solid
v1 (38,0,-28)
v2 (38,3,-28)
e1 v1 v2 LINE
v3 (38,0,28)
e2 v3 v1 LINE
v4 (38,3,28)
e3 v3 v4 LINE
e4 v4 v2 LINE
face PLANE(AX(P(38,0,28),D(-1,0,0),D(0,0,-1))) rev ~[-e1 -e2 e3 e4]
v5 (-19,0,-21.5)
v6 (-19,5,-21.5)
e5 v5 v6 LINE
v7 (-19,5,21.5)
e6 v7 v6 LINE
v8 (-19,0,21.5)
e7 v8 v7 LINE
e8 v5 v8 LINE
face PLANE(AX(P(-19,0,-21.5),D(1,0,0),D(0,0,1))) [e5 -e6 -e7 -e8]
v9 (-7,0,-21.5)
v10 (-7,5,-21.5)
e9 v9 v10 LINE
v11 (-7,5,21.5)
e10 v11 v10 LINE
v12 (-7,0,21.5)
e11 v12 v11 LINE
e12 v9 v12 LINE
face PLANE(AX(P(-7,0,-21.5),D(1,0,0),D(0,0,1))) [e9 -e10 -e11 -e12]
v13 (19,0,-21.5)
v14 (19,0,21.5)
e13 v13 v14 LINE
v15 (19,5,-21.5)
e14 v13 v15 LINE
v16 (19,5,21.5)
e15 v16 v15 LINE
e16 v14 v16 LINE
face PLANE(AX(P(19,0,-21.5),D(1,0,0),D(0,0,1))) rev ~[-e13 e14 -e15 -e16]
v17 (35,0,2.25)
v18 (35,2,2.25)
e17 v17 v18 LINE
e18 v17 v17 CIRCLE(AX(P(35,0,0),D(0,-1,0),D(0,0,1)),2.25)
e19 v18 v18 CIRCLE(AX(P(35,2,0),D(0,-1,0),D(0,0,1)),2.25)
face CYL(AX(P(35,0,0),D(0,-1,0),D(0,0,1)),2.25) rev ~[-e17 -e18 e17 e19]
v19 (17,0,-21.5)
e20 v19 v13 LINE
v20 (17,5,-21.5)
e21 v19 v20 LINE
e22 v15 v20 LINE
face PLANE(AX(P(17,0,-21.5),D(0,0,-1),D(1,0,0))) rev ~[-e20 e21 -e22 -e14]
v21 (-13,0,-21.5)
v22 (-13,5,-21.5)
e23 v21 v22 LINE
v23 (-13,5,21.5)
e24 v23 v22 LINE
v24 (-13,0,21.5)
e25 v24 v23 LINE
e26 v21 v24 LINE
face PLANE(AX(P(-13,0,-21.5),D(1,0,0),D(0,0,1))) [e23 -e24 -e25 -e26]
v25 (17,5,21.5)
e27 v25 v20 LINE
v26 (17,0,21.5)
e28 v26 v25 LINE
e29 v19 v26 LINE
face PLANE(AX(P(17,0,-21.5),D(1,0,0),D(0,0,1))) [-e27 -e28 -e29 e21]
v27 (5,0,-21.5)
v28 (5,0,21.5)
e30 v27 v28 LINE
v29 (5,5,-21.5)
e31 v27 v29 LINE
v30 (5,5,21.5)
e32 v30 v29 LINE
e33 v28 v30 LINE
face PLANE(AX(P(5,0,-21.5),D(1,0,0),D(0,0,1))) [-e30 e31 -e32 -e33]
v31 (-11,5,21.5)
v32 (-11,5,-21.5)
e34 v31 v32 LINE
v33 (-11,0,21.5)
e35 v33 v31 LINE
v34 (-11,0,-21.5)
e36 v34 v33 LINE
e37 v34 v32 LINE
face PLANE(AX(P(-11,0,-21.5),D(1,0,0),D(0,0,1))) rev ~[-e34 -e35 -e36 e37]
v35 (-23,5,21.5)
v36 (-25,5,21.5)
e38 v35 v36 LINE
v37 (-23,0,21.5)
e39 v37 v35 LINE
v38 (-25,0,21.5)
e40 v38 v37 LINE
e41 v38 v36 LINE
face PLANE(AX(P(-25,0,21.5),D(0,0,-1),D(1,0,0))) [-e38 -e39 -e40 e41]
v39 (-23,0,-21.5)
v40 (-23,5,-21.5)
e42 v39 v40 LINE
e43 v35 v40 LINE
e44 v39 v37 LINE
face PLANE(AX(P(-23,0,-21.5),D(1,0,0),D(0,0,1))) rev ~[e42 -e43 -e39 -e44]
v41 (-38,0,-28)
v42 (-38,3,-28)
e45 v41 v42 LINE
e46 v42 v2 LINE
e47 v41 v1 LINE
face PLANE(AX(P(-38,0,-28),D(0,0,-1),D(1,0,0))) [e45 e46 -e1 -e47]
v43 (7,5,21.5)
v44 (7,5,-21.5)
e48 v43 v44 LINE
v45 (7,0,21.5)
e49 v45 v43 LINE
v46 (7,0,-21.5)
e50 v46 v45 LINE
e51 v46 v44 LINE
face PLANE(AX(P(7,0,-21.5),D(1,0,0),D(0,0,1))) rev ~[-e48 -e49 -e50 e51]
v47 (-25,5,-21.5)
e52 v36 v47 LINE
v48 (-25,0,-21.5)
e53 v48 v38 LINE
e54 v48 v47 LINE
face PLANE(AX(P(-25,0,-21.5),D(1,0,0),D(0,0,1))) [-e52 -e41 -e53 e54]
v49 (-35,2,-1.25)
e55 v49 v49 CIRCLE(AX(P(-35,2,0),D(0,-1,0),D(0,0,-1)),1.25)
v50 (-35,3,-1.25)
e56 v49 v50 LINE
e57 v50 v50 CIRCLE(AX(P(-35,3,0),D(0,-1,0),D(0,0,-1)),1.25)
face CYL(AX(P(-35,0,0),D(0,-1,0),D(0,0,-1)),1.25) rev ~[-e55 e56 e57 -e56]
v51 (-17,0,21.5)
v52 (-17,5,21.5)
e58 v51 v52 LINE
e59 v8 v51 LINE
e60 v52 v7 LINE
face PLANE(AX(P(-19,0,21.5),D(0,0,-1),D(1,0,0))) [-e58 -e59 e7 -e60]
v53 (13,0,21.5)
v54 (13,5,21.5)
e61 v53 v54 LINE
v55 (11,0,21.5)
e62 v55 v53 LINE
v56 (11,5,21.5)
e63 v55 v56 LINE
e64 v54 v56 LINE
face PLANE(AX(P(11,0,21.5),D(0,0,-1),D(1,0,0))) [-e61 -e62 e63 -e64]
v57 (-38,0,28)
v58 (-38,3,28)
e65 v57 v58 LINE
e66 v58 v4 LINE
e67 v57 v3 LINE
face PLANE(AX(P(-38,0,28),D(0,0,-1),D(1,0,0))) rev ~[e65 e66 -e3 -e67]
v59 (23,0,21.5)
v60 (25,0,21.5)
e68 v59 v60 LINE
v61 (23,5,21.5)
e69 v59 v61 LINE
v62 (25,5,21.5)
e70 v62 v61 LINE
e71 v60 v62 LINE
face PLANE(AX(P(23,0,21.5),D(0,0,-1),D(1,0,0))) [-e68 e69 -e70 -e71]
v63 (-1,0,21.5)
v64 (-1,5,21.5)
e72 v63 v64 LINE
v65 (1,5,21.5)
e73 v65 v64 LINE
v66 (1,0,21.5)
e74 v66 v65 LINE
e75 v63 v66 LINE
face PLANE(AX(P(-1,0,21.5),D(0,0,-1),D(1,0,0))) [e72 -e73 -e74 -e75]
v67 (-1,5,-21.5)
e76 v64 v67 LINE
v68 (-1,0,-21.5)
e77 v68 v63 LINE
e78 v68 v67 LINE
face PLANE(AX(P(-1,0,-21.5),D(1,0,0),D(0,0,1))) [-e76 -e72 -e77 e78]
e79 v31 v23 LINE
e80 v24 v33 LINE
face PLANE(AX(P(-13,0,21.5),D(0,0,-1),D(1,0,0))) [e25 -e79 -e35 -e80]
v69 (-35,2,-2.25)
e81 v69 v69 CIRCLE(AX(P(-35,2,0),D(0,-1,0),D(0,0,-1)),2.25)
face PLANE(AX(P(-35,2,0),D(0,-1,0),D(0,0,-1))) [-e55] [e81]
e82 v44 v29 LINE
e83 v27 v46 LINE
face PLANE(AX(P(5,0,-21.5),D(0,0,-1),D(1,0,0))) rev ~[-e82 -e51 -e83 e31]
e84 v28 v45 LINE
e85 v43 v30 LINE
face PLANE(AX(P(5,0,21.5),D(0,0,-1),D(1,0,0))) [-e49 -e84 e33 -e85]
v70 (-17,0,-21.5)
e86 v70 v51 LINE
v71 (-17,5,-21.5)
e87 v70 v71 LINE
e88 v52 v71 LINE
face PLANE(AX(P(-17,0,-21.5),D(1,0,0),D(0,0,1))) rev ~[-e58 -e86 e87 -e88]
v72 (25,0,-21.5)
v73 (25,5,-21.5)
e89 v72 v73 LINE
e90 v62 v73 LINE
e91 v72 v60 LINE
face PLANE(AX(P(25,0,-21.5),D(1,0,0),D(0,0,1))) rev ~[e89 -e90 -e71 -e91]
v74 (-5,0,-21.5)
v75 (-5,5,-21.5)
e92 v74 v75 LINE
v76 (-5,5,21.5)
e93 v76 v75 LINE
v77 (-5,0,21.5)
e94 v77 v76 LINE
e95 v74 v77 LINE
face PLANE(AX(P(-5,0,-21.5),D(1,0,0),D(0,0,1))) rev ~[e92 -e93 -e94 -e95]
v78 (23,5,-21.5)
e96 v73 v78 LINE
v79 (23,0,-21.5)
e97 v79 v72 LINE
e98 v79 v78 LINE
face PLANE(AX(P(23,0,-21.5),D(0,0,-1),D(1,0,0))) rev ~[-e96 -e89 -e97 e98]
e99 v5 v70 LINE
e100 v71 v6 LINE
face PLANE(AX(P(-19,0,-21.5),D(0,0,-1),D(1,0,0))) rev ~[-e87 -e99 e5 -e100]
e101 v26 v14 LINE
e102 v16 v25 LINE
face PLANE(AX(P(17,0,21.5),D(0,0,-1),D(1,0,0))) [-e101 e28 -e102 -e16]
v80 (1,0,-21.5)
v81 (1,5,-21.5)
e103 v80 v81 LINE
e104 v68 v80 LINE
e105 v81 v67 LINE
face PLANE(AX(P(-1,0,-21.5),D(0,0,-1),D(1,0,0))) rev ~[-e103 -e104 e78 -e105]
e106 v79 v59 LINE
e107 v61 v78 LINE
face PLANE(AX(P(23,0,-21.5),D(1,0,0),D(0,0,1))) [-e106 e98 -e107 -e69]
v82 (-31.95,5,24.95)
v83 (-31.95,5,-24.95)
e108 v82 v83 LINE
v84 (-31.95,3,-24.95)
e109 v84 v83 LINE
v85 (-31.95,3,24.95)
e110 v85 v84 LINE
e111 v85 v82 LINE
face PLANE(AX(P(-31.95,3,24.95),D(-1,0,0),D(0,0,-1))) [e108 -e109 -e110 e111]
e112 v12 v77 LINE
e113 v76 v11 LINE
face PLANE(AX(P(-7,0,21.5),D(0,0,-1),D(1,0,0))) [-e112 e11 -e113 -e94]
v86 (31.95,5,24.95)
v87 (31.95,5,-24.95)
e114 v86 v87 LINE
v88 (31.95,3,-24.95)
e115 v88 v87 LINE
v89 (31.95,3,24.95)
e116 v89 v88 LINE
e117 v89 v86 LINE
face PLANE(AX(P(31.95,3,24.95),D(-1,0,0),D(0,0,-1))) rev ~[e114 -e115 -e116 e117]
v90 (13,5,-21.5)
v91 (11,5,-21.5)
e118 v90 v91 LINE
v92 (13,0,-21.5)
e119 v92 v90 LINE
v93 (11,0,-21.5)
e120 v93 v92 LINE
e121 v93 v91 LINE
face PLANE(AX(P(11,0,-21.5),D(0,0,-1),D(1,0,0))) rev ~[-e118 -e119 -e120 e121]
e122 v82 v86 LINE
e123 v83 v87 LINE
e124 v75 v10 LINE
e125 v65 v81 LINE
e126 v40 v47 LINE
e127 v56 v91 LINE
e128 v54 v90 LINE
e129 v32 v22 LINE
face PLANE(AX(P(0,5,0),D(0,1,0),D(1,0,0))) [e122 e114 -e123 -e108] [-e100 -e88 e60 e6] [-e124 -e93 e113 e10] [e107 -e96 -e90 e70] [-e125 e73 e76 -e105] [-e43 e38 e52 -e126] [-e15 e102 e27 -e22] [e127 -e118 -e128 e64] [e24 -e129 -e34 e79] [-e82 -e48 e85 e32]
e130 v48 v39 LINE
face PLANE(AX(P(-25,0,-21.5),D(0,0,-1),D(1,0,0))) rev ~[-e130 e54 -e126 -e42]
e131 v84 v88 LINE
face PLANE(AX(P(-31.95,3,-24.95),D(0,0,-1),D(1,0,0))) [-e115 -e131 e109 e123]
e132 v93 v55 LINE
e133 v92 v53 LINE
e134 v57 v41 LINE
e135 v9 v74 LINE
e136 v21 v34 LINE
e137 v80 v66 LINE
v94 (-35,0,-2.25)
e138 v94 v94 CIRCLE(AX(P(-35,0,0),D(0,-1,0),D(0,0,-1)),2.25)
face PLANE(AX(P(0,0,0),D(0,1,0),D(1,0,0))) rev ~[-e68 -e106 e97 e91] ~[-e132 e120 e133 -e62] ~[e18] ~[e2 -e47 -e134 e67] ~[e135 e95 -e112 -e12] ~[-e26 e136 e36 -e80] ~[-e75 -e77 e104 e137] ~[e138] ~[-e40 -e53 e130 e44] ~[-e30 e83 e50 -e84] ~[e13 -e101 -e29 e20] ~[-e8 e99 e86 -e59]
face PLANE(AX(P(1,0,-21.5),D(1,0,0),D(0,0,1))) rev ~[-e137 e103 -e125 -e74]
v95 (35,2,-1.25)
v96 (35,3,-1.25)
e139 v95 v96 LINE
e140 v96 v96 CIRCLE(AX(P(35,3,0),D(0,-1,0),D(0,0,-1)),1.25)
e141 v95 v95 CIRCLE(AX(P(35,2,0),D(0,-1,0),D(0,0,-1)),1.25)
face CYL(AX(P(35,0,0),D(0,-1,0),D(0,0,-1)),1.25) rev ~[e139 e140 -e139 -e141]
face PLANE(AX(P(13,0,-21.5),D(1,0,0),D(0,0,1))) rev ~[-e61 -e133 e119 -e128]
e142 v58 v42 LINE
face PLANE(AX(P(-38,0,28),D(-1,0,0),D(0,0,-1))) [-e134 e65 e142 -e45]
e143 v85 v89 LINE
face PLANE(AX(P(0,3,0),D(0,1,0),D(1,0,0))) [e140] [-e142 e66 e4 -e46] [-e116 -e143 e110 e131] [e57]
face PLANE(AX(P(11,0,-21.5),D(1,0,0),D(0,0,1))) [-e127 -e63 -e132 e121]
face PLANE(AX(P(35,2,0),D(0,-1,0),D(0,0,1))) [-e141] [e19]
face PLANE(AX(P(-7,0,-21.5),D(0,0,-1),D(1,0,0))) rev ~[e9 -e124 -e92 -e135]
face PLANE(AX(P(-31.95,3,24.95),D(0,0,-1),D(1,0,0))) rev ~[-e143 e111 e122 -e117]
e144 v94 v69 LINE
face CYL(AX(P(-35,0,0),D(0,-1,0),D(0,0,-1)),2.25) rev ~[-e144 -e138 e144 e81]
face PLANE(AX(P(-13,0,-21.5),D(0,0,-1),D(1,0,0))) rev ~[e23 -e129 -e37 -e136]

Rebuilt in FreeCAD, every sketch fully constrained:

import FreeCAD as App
import Part
import Sketcher

V = App.Vector
Q = App.Units.Quantity


def add_polygon(sketch, points):
    """Adds a closed chain of lines whose ends are joined by coincident constraints."""
    first, n = sketch.GeometryCount, len(points)
    for a, b in zip(points, points[1:] + points[:1]):
        sketch.addGeometry(Part.LineSegment(App.Vector(*a, 0), App.Vector(*b, 0)), False)
    for i in range(n):
        sketch.addConstraint(Sketcher.Constraint("Coincident", first + i, 2, first + (i + 1) % n, 1))

doc = App.newDocument("Part")
params = doc.addObject("Spreadsheet::Sheet", "Params")
for row, (alias, value) in enumerate([
    ("sketch1_width", "76 mm"),
    ("sketch1_height", "56 mm"),
    ("pad1_length", "3 mm"),
    ("sketch2_width", "63.9 mm"),
    ("sketch2_height", "49.9 mm"),
    ("pad2_length", "2 mm"),
    ("sketch3_diameter", "4.5 mm"),
    ("pocket1_length", "2 mm"),
    ("sketch4_diameter", "2.5 mm"),
    ("pocket2_length", "3 mm"),
    ("sketch5_diameter", "2.5 mm"),
    ("pocket3_length", "3 mm"),
    ("sketch6_width", "2 mm"),
    ("sketch6_height", "43 mm"),
], start=1):
    params.set(f"A{row}", alias)
    params.set(f"B{row}", "=" + value)
    params.setAlias(f"B{row}", alias)

body = doc.addObject("PartDesign::Body", "Body")

# Sketch on XZ plane
sketch1 = body.newObject("Sketcher::SketchObject", "Sketch")
sketch1.AttachmentSupport = (doc.getObject("XZ_Plane"), [""])
sketch1.MapMode = "FlatFace"
add_polygon(sketch1, [(-38, -28), (-38, 28), (38, 28), (38, -28)])  # lines 0-3
sketch1.addConstraint(Sketcher.Constraint("Vertical", 0))
sketch1.addConstraint(Sketcher.Constraint("Horizontal", 1))
sketch1.addConstraint(Sketcher.Constraint("Vertical", 2))
sketch1.addConstraint(Sketcher.Constraint("Horizontal", 3))
sketch1.addConstraint(Sketcher.Constraint("Symmetric", 0, 2, 2, 2, -1, 1))
sketch1.addConstraint(Sketcher.Constraint("DistanceX", 1, 1, 1, 2, Q("76 mm")))
sketch1.addConstraint(Sketcher.Constraint("DistanceY", 0, 1, 0, 2, Q("56 mm")))
sketch1.setExpression("Constraints[9]", "Params.sketch1_width")
sketch1.setExpression("Constraints[10]", "Params.sketch1_height")
pad1 = body.newObject("PartDesign::Pad", "Pad")
pad1.Profile = sketch1
pad1.setExpression("Length", "Params.pad1_length")
pad1.Reversed = True

# Sketch on XZ plane
sketch2 = body.newObject("Sketcher::SketchObject", "Sketch001")
sketch2.AttachmentSupport = (doc.getObject("XZ_Plane"), [""])
sketch2.MapMode = "FlatFace"
sketch2.AttachmentOffset = App.Placement(V(0, 0, -3), App.Rotation())
add_polygon(sketch2, [(-32, -25), (-32, 25), (32, 25), (32, -25)])  # lines 0-3
sketch2.addConstraint(Sketcher.Constraint("Vertical", 0))
sketch2.addConstraint(Sketcher.Constraint("Horizontal", 1))
sketch2.addConstraint(Sketcher.Constraint("Vertical", 2))
sketch2.addConstraint(Sketcher.Constraint("Horizontal", 3))
sketch2.addConstraint(Sketcher.Constraint("Symmetric", 0, 2, 2, 2, -1, 1))
sketch2.addConstraint(Sketcher.Constraint("DistanceX", 1, 1, 1, 2, Q("63.9 mm")))
sketch2.addConstraint(Sketcher.Constraint("DistanceY", 0, 1, 0, 2, Q("49.9 mm")))
sketch2.setExpression("Constraints[9]", "Params.sketch2_width")
sketch2.setExpression("Constraints[10]", "Params.sketch2_height")
pad2 = body.newObject("PartDesign::Pad", "Pad001")
pad2.Profile = sketch2
pad2.setExpression("Length", "Params.pad2_length")
pad2.Reversed = True

# Sketch on XZ plane
sketch3 = body.newObject("Sketcher::SketchObject", "Sketch002")
sketch3.AttachmentSupport = (doc.getObject("XZ_Plane"), [""])
sketch3.MapMode = "FlatFace"
sketch3.addGeometry(Part.Circle(V(-35, 0, 0), V(0, 0, 1), 2.2), False)
sketch3.addGeometry(Part.Circle(V(35, 0, 0), V(0, 0, 1), 2.2), False)
sketch3.addConstraint(Sketcher.Constraint("Equal", 0, 1))
sketch3.addConstraint(Sketcher.Constraint("Symmetric", 0, 3, 1, 3, -1, 1))
sketch3.addConstraint(Sketcher.Constraint("PointOnObject", 0, 3, -1))
sketch3.addConstraint(Sketcher.Constraint("Diameter", 0, Q("4.5 mm")))
sketch3.addConstraint(Sketcher.Constraint("DistanceX", 0, 3, -1, 1, Q("35 mm")))
sketch3.setExpression("Constraints[3]", "Params.sketch3_diameter")
pocket1 = body.newObject("PartDesign::Pocket", "Pocket")
pocket1.Profile = sketch3
pocket1.setExpression("Length", "Params.pocket1_length")

# Sketch on XZ plane
sketch4 = body.newObject("Sketcher::SketchObject", "Sketch003")
sketch4.AttachmentSupport = (doc.getObject("XZ_Plane"), [""])
sketch4.MapMode = "FlatFace"
sketch4.addGeometry(Part.Circle(V(-35, 0, 0), V(0, 0, 1), 1.2), False)
sketch4.addConstraint(Sketcher.Constraint("PointOnObject", 0, 3, -1))
sketch4.addConstraint(Sketcher.Constraint("Diameter", 0, Q("2.5 mm")))
sketch4.addConstraint(Sketcher.Constraint("DistanceX", 0, 3, -1, 1, Q("35 mm")))
sketch4.setExpression("Constraints[1]", "Params.sketch4_diameter")
pocket2 = body.newObject("PartDesign::Pocket", "Pocket001")
pocket2.Profile = sketch4
pocket2.setExpression("Length", "Params.pocket2_length")

# Sketch on XZ plane
sketch5 = body.newObject("Sketcher::SketchObject", "Sketch004")
sketch5.AttachmentSupport = (doc.getObject("XZ_Plane"), [""])
sketch5.MapMode = "FlatFace"
sketch5.addGeometry(Part.Circle(V(35, 0, 0), V(0, 0, 1), 1.2), False)
sketch5.addConstraint(Sketcher.Constraint("PointOnObject", 0, 3, -1))
sketch5.addConstraint(Sketcher.Constraint("Diameter", 0, Q("2.5 mm")))
sketch5.addConstraint(Sketcher.Constraint("DistanceX", -1, 1, 0, 3, Q("35 mm")))
sketch5.setExpression("Constraints[1]", "Params.sketch5_diameter")
pocket3 = body.newObject("PartDesign::Pocket", "Pocket002")
pocket3.Profile = sketch5
pocket3.setExpression("Length", "Params.pocket3_length")

# Sketch on XZ plane
sketch6 = body.newObject("Sketcher::SketchObject", "Sketch005")
sketch6.AttachmentSupport = (doc.getObject("XZ_Plane"), [""])
sketch6.MapMode = "FlatFace"
add_polygon(sketch6, [(5, 21.5), (5, -21.5), (7, -21.5), (7, 21.5)])  # lines 0-3
add_polygon(sketch6, [(-1, 21.5), (-1, -21.5), (1, -21.5), (1, 21.5)])  # lines 4-7
add_polygon(sketch6, [(11, 21.5), (11, -21.5), (13, -21.5), (13, 21.5)])  # lines 8-11
add_polygon(sketch6, [(17, 21.5), (17, -21.5), (19, -21.5), (19, 21.5)])  # lines 12-15
add_polygon(sketch6, [(23, 21.5), (23, -21.5), (25, -21.5), (25, 21.5)])  # lines 16-19
add_polygon(sketch6, [(-7, 21.5), (-7, -21.5), (-5, -21.5), (-5, 21.5)])  # lines 20-23
add_polygon(sketch6, [(-13, 21.5), (-13, -21.5), (-11, -21.5), (-11, 21.5)])  # lines 24-27
add_polygon(sketch6, [(-19, 21.5), (-19, -21.5), (-17, -21.5), (-17, 21.5)])  # lines 28-31
add_polygon(sketch6, [(-25, 21.5), (-25, -21.5), (-23, -21.5), (-23, 21.5)])  # lines 32-35
sketch6.addConstraint(Sketcher.Constraint("Vertical", 0))
sketch6.addConstraint(Sketcher.Constraint("Horizontal", 1))
sketch6.addConstraint(Sketcher.Constraint("Vertical", 2))
sketch6.addConstraint(Sketcher.Constraint("Horizontal", 3))
sketch6.addConstraint(Sketcher.Constraint("Vertical", 4))
sketch6.addConstraint(Sketcher.Constraint("Horizontal", 5))
sketch6.addConstraint(Sketcher.Constraint("Vertical", 6))
sketch6.addConstraint(Sketcher.Constraint("Horizontal", 7))
sketch6.addConstraint(Sketcher.Constraint("Vertical", 8))
sketch6.addConstraint(Sketcher.Constraint("Horizontal", 9))
sketch6.addConstraint(Sketcher.Constraint("Vertical", 10))
sketch6.addConstraint(Sketcher.Constraint("Horizontal", 11))
sketch6.addConstraint(Sketcher.Constraint("Vertical", 12))
sketch6.addConstraint(Sketcher.Constraint("Horizontal", 13))
sketch6.addConstraint(Sketcher.Constraint("Vertical", 14))
sketch6.addConstraint(Sketcher.Constraint("Horizontal", 15))
sketch6.addConstraint(Sketcher.Constraint("Vertical", 16))
sketch6.addConstraint(Sketcher.Constraint("Horizontal", 17))
sketch6.addConstraint(Sketcher.Constraint("Vertical", 18))
sketch6.addConstraint(Sketcher.Constraint("Horizontal", 19))
sketch6.addConstraint(Sketcher.Constraint("Vertical", 20))
sketch6.addConstraint(Sketcher.Constraint("Horizontal", 21))
sketch6.addConstraint(Sketcher.Constraint("Vertical", 22))
sketch6.addConstraint(Sketcher.Constraint("Horizontal", 23))
sketch6.addConstraint(Sketcher.Constraint("Vertical", 24))
sketch6.addConstraint(Sketcher.Constraint("Horizontal", 25))
sketch6.addConstraint(Sketcher.Constraint("Vertical", 26))
sketch6.addConstraint(Sketcher.Constraint("Horizontal", 27))
sketch6.addConstraint(Sketcher.Constraint("Vertical", 28))
sketch6.addConstraint(Sketcher.Constraint("Horizontal", 29))
sketch6.addConstraint(Sketcher.Constraint("Vertical", 30))
sketch6.addConstraint(Sketcher.Constraint("Horizontal", 31))
sketch6.addConstraint(Sketcher.Constraint("Vertical", 32))
sketch6.addConstraint(Sketcher.Constraint("Horizontal", 33))
sketch6.addConstraint(Sketcher.Constraint("Vertical", 34))
sketch6.addConstraint(Sketcher.Constraint("Horizontal", 35))
sketch6.addConstraint(Sketcher.Constraint("Symmetric", 4, 2, 6, 2, -1, 1))
sketch6.addConstraint(Sketcher.Constraint("Symmetric", 2, 2, 20, 2, -1, 1))
sketch6.addConstraint(Sketcher.Constraint("Symmetric", 0, 2, 22, 2, -1, 1))
sketch6.addConstraint(Sketcher.Constraint("Symmetric", 10, 2, 24, 2, -1, 1))
sketch6.addConstraint(Sketcher.Constraint("Symmetric", 8, 2, 26, 2, -1, 1))
sketch6.addConstraint(Sketcher.Constraint("Symmetric", 14, 2, 28, 2, -1, 1))
sketch6.addConstraint(Sketcher.Constraint("Symmetric", 12, 2, 30, 2, -1, 1))
sketch6.addConstraint(Sketcher.Constraint("Symmetric", 18, 2, 32, 2, -1, 1))
sketch6.addConstraint(Sketcher.Constraint("Symmetric", 16, 2, 34, 2, -1, 1))
sketch6.addConstraint(Sketcher.Constraint("Horizontal", 1, 2, 4, 2))
sketch6.addConstraint(Sketcher.Constraint("Horizontal", 3, 2, 6, 2))
sketch6.addConstraint(Sketcher.Constraint("Horizontal", 5, 2, 8, 2))
sketch6.addConstraint(Sketcher.Constraint("Horizontal", 7, 2, 10, 2))
sketch6.addConstraint(Sketcher.Constraint("Horizontal", 9, 2, 12, 2))
sketch6.addConstraint(Sketcher.Constraint("Horizontal", 11, 2, 14, 2))
sketch6.addConstraint(Sketcher.Constraint("Horizontal", 13, 2, 16, 2))
sketch6.addConstraint(Sketcher.Constraint("Horizontal", 15, 2, 18, 2))
sketch6.addConstraint(Sketcher.Constraint("Equal", 3, 5))
sketch6.addConstraint(Sketcher.Constraint("Equal", 7, 9))
sketch6.addConstraint(Sketcher.Constraint("Equal", 11, 13))
sketch6.addConstraint(Sketcher.Constraint("Equal", 15, 17))
sketch6.addConstraint(Sketcher.Constraint("DistanceX", 1, 1, 1, 2, Q("2 mm")))
sketch6.addConstraint(Sketcher.Constraint("DistanceY", 0, 2, 0, 1, Q("43 mm")))
sketch6.addConstraint(Sketcher.Constraint("DistanceX", -1, 1, 0, 2, Q("5 mm")))
sketch6.addConstraint(Sketcher.Constraint("DistanceX", -1, 1, 8, 2, Q("11 mm")))
sketch6.addConstraint(Sketcher.Constraint("DistanceX", -1, 1, 12, 2, Q("17 mm")))
sketch6.addConstraint(Sketcher.Constraint("DistanceX", -1, 1, 16, 2, Q("23 mm")))
sketch6.setExpression("Constraints[93]", "Params.sketch6_width")
sketch6.setExpression("Constraints[94]", "Params.sketch6_height")
pocket4 = body.newObject("PartDesign::Pocket", "Pocket003")
pocket4.Profile = sketch6
pocket4.Type = "ThroughAll"

doc.recompute()
